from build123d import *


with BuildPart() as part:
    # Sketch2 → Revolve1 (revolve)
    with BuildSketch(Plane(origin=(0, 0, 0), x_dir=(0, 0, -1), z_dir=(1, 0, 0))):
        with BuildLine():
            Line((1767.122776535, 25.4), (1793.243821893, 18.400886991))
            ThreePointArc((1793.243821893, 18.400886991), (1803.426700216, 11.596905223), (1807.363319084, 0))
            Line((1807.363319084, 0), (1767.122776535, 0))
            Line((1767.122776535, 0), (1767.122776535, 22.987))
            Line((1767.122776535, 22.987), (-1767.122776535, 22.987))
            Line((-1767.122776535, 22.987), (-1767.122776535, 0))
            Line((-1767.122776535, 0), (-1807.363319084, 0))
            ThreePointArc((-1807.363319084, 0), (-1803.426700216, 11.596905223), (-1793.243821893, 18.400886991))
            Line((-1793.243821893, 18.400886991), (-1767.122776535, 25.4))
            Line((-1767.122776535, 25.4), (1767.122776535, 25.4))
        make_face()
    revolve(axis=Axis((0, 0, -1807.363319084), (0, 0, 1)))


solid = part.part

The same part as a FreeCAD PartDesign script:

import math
import FreeCAD as App
import Part
import Sketcher
Q = App.Units.Quantity

doc = App.newDocument("Part")
body = doc.addObject("PartDesign::Body", "Body")

sketch1 = body.newObject("Sketcher::SketchObject", "Sketch")
sketch1.AttachmentSupport = (doc.getObject("YZ_Plane"), [""])
sketch1.MapMode = "FlatFace"
sketch1.addGeometry([
    Part.LineSegment(App.Vector(18.400887, -1793.243822, 0), App.Vector(25.4, -1767.122777, 0)),
    Part.LineSegment(App.Vector(25.4, -1767.122777, 0), App.Vector(25.4, 1767.122777, 0)),
    Part.LineSegment(App.Vector(25.4, 1767.122777, 0), App.Vector(18.400887, 1793.243822, 0)),
    Part.ArcOfCircle(Part.Circle(App.Vector(0, 1788.313319, 0), App.Vector(0, 0, 1), 19.05), math.radians(15), math.radians(90)),
    Part.LineSegment(App.Vector(0, 1807.363319, 0), App.Vector(0, 1767.122777, 0)),
    Part.LineSegment(App.Vector(0, 1767.122777, 0), App.Vector(22.987, 1767.122777, 0)),
    Part.LineSegment(App.Vector(22.987, 1767.122777, 0), App.Vector(22.987, -1767.122777, 0)),
    Part.LineSegment(App.Vector(22.987, -1767.122777, 0), App.Vector(0, -1767.122777, 0)),
    Part.LineSegment(App.Vector(0, -1767.122777, 0), App.Vector(0, -1807.363319, 0)),
    Part.ArcOfCircle(Part.Circle(App.Vector(0, -1788.313319, 0), App.Vector(0, 0, 1), 19.05), math.radians(-90), math.radians(-15)),
], False)
sketch1.addConstraint([
    Sketcher.Constraint("Coincident", 0, 2, 1, 1),
    Sketcher.Constraint("Coincident", 1, 2, 2, 1),
    Sketcher.Constraint("Tangent", 2, 2, 3, 1),
    Sketcher.Constraint("Coincident", 3, 2, 4, 1),
    Sketcher.Constraint("Coincident", 4, 2, 5, 1),
    Sketcher.Constraint("Coincident", 5, 2, 6, 1),
    Sketcher.Constraint("Coincident", 6, 2, 7, 1),
    Sketcher.Constraint("Coincident", 7, 2, 8, 1),
    Sketcher.Constraint("Coincident", 8, 2, 9, 1),
    Sketcher.Constraint("Tangent", 9, 2, 0, 1),
    Sketcher.Constraint("Vertical", 1),
    Sketcher.Constraint("Vertical", 4),
    Sketcher.Constraint("Horizontal", 5),
    Sketcher.Constraint("Vertical", 6),
    Sketcher.Constraint("Horizontal", 7),
    Sketcher.Constraint("Vertical", 8),
    Sketcher.Constraint("Equal", 3, 9),
    Sketcher.Constraint("Symmetric", 3, 3, 9, 3, -1, 1),
    Sketcher.Constraint("Symmetric", 4, 2, 7, 2, -1, 1),
    Sketcher.Constraint("Symmetric", 2, 2, 9, 2, -1),
    Sketcher.Constraint("PointOnObject", 3, 2, -2),
    Sketcher.Constraint("Horizontal", 1, 2, 4, 2),
    Sketcher.Constraint("Radius", 3, Q("0.75 in")),
    Sketcher.Constraint("DistanceX", -1, 1, 0, 2, Q("1 in")),
    Sketcher.Constraint("Angle", 0, Q("75 deg")),
    Sketcher.Constraint("DistanceX", 5, 1, 5, 2, Q("0.905 in")),
    Sketcher.Constraint("DistanceY", 0, 2, 2, 2, 3560.366598),
])
revolution = body.newObject("PartDesign::Revolution", "Revolution")
revolution.Profile = sketch1
revolution.ReferenceAxis = (sketch1, ["V_Axis"])
revolution.Angle = 360

doc.recompute()
